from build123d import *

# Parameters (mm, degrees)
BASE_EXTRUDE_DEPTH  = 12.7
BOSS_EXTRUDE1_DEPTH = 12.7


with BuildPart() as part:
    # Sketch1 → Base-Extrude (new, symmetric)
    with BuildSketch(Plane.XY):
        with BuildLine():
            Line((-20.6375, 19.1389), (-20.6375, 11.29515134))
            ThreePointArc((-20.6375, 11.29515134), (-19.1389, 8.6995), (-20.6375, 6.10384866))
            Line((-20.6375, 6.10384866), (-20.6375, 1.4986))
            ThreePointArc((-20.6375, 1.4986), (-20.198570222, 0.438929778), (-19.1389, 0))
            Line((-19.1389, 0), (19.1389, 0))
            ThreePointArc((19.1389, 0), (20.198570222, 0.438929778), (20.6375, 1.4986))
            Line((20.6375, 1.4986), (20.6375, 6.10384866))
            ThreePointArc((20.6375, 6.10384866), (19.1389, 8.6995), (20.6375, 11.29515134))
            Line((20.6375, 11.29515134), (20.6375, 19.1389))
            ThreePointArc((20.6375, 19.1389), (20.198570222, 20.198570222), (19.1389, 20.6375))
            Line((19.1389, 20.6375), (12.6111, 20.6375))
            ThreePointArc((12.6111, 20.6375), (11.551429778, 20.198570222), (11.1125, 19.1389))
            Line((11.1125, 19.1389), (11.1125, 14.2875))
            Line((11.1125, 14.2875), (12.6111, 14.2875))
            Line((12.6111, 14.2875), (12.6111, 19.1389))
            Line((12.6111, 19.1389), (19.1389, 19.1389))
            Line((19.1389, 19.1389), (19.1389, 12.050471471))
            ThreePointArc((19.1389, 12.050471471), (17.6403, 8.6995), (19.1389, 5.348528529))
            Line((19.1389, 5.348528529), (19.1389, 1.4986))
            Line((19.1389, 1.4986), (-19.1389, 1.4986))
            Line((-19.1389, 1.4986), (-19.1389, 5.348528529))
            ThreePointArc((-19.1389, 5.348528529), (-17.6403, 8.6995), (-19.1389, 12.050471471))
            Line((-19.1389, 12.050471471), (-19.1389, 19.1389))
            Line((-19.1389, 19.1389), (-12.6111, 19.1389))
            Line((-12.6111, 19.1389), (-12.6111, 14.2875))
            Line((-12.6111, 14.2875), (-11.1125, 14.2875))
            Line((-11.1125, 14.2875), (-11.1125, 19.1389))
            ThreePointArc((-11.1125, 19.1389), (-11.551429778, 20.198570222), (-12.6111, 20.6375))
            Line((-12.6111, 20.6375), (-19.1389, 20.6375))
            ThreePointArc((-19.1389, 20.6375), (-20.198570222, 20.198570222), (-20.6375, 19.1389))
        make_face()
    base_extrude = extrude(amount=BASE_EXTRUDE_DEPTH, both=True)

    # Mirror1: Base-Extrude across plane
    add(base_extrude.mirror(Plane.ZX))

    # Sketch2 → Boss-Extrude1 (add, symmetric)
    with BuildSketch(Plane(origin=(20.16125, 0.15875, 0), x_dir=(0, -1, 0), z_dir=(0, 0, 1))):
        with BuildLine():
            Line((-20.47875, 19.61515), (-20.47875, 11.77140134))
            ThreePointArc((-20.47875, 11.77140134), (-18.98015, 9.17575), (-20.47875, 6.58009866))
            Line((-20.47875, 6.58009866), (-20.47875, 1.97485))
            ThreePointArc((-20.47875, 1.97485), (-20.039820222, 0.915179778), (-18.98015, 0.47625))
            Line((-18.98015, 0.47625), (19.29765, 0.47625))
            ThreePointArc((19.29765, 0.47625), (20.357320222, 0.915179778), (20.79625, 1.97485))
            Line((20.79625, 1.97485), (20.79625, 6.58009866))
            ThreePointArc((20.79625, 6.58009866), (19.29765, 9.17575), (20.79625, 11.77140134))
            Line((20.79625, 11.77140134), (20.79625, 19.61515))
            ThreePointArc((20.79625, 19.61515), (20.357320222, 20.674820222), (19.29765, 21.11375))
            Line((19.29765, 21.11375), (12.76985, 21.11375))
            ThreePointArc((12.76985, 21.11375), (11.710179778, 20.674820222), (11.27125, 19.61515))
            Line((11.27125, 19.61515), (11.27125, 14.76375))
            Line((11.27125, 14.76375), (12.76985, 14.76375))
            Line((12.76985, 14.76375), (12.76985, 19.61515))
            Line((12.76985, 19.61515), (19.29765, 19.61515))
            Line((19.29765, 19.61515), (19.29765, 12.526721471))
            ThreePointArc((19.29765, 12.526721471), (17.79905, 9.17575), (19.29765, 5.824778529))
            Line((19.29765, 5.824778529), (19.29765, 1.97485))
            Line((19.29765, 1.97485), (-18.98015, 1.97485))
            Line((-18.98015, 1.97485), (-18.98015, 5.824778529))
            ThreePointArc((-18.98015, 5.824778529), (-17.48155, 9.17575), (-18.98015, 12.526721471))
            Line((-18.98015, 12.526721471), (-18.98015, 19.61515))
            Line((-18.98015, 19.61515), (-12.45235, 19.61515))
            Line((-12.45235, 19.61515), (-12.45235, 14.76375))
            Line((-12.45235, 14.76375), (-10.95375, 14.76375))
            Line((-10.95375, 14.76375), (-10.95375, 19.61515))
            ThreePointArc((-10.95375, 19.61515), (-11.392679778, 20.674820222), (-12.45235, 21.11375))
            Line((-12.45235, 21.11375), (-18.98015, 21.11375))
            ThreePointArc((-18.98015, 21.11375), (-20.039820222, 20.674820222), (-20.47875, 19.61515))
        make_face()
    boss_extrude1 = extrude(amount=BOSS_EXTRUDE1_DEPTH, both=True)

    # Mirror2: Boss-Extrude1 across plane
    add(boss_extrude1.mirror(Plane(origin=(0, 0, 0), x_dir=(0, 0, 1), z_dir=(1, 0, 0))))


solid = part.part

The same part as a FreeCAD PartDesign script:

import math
import FreeCAD as App
import Part
import Sketcher
from FreeCAD import Vector
Q = App.Units.Quantity

doc = App.newDocument("Part")
body = doc.addObject("PartDesign::Body", "Body")

# Sketch on XY plane
sketch1 = body.newObject("Sketcher::SketchObject", "Sketch")
sketch1.AttachmentSupport = (doc.getObject("XY_Plane"), [""])
sketch1.MapMode = "FlatFace"
sketch1.addGeometry(Part.LineSegment(Vector(-20.6, 19.1, 0), Vector(-20.6, 11.3, 0)), False)
sketch1.addGeometry(Part.ArcOfCircle(Part.Circle(Vector(-22.1, 8.7, 0), Vector(0, 0, 1), 3), math.radians(-60), math.radians(60)), False)
sketch1.addGeometry(Part.LineSegment(Vector(-20.6, 6.1, 0), Vector(-20.6, 1.5, 0)), False)
sketch1.addGeometry(Part.ArcOfCircle(Part.Circle(Vector(-19.1, 1.5, 0), Vector(0, 0, 1), 1.5), math.radians(-180), math.radians(-90)), False)
sketch1.addGeometry(Part.LineSegment(Vector(-19.1, 0, 0), Vector(19.1, 0, 0)), False)
sketch1.addGeometry(Part.ArcOfCircle(Part.Circle(Vector(19.1, 1.5, 0), Vector(0, 0, 1), 1.5), math.radians(-90), math.radians(0)), False)
sketch1.addGeometry(Part.LineSegment(Vector(20.6, 1.5, 0), Vector(20.6, 6.1, 0)), False)
sketch1.addGeometry(Part.ArcOfCircle(Part.Circle(Vector(22.1, 8.7, 0), Vector(0, 0, 1), 3), math.radians(120), math.radians(240)), False)
sketch1.addGeometry(Part.LineSegment(Vector(20.6, 11.3, 0), Vector(20.6, 19.1, 0)), False)
sketch1.addGeometry(Part.ArcOfCircle(Part.Circle(Vector(19.1, 19.1, 0), Vector(0, 0, 1), 1.5), math.radians(0), math.radians(90)), False)
sketch1.addGeometry(Part.LineSegment(Vector(19.1, 20.6, 0), Vector(12.6, 20.6, 0)), False)
sketch1.addGeometry(Part.ArcOfCircle(Part.Circle(Vector(12.6, 19.1, 0), Vector(0, 0, 1), 1.5), math.radians(90), math.radians(180)), False)
sketch1.addGeometry(Part.LineSegment(Vector(11.1, 19.1, 0), Vector(11.1, 14.3, 0)), False)
sketch1.addGeometry(Part.LineSegment(Vector(11.1, 14.3, 0), Vector(12.6, 14.3, 0)), False)
sketch1.addGeometry(Part.LineSegment(Vector(12.6, 14.3, 0), Vector(12.6, 19.1, 0)), False)
sketch1.addGeometry(Part.LineSegment(Vector(12.6, 19.1, 0), Vector(19.1, 19.1, 0)), False)
sketch1.addGeometry(Part.LineSegment(Vector(19.1, 19.1, 0), Vector(19.1, 12.1, 0)), False)
sketch1.addGeometry(Part.ArcOfCircle(Part.Circle(Vector(22.1, 8.7, 0), Vector(0, 0, 1), 4.5), math.radians(132), math.radians(228)), False)
sketch1.addGeometry(Part.LineSegment(Vector(19.1, 5.3, 0), Vector(19.1, 1.5, 0)), False)
sketch1.addGeometry(Part.LineSegment(Vector(19.1, 1.5, 0), Vector(-19.1, 1.5, 0)), False)
sketch1.addGeometry(Part.LineSegment(Vector(-19.1, 1.5, 0), Vector(-19.1, 5.3, 0)), False)
sketch1.addGeometry(Part.ArcOfCircle(Part.Circle(Vector(-22.1, 8.7, 0), Vector(0, 0, 1), 4.5), math.radians(-48), math.radians(48)), False)
sketch1.addGeometry(Part.LineSegment(Vector(-19.1, 12.1, 0), Vector(-19.1, 19.1, 0)), False)
sketch1.addGeometry(Part.LineSegment(Vector(-19.1, 19.1, 0), Vector(-12.6, 19.1, 0)), False)
sketch1.addGeometry(Part.LineSegment(Vector(-12.6, 19.1, 0), Vector(-12.6, 14.3, 0)), False)
sketch1.addGeometry(Part.LineSegment(Vector(-12.6, 14.3, 0), Vector(-11.1, 14.3, 0)), False)
sketch1.addGeometry(Part.LineSegment(Vector(-11.1, 14.3, 0), Vector(-11.1, 19.1, 0)), False)
sketch1.addGeometry(Part.ArcOfCircle(Part.Circle(Vector(-12.6, 19.1, 0), Vector(0, 0, 1), 1.5), math.radians(0), math.radians(90)), False)
sketch1.addGeometry(Part.LineSegment(Vector(-12.6, 20.6, 0), Vector(-19.1, 20.6, 0)), False)
sketch1.addGeometry(Part.ArcOfCircle(Part.Circle(Vector(-19.1, 19.1, 0), Vector(0, 0, 1), 1.5), math.radians(90), math.radians(180)), False)
sketch1.addConstraint(Sketcher.Constraint("Coincident", 0, 2, 1, 2))
sketch1.addConstraint(Sketcher.Constraint("Coincident", 1, 1, 2, 1))
sketch1.addConstraint(Sketcher.Constraint("Tangent", 2, 2, 3, 1))
sketch1.addConstraint(Sketcher.Constraint("Tangent", 3, 2, 4, 1))
sketch1.addConstraint(Sketcher.Constraint("Tangent", 4, 2, 5, 1))
sketch1.addConstraint(Sketcher.Constraint("Tangent", 5, 2, 6, 1))
sketch1.addConstraint(Sketcher.Constraint("Coincident", 6, 2, 7, 2))
sketch1.addConstraint(Sketcher.Constraint("Coincident", 7, 1, 8, 1))
sketch1.addConstraint(Sketcher.Constraint("Tangent", 8, 2, 9, 1))
sketch1.addConstraint(Sketcher.Constraint("Tangent", 9, 2, 10, 1))
sketch1.addConstraint(Sketcher.Constraint("Tangent", 10, 2, 11, 1))
sketch1.addConstraint(Sketcher.Constraint("Tangent", 11, 2, 12, 1))
sketch1.addConstraint(Sketcher.Constraint("Coincident", 12, 2, 13, 1))
sketch1.addConstraint(Sketcher.Constraint("Coincident", 13, 2, 14, 1))
sketch1.addConstraint(Sketcher.Constraint("Coincident", 14, 2, 15, 1))
sketch1.addConstraint(Sketcher.Constraint("Coincident", 15, 2, 16, 1))
sketch1.addConstraint(Sketcher.Constraint("Coincident", 16, 2, 17, 1))
sketch1.addConstraint(Sketcher.Constraint("Coincident", 17, 2, 18, 1))
sketch1.addConstraint(Sketcher.Constraint("Coincident", 18, 2, 19, 1))
sketch1.addConstraint(Sketcher.Constraint("Coincident", 19, 2, 20, 1))
sketch1.addConstraint(Sketcher.Constraint("Coincident", 20, 2, 21, 1))
sketch1.addConstraint(Sketcher.Constraint("Coincident", 21, 2, 22, 1))
sketch1.addConstraint(Sketcher.Constraint("Coincident", 22, 2, 23, 1))
sketch1.addConstraint(Sketcher.Constraint("Coincident", 23, 2, 24, 1))
sketch1.addConstraint(Sketcher.Constraint("Coincident", 24, 2, 25, 1))
sketch1.addConstraint(Sketcher.Constraint("Coincident", 25, 2, 26, 1))
sketch1.addConstraint(Sketcher.Constraint("Tangent", 26, 2, 27, 1))
sketch1.addConstraint(Sketcher.Constraint("Tangent", 27, 2, 28, 1))
sketch1.addConstraint(Sketcher.Constraint("Tangent", 28, 2, 29, 1))
sketch1.addConstraint(Sketcher.Constraint("Tangent", 29, 2, 0, 1))
sketch1.addConstraint(Sketcher.Constraint("Vertical", 0))
sketch1.addConstraint(Sketcher.Constraint("Vertical", 2))
sketch1.addConstraint(Sketcher.Constraint("Horizontal", 4))
sketch1.addConstraint(Sketcher.Constraint("Vertical", 6))
sketch1.addConstraint(Sketcher.Constraint("Vertical", 8))
sketch1.addConstraint(Sketcher.Constraint("Horizontal", 10))
sketch1.addConstraint(Sketcher.Constraint("Vertical", 12))
sketch1.addConstraint(Sketcher.Constraint("Horizontal", 13))
sketch1.addConstraint(Sketcher.Constraint("Vertical", 14))
sketch1.addConstraint(Sketcher.Constraint("Horizontal", 15))
sketch1.addConstraint(Sketcher.Constraint("Vertical", 16))
sketch1.addConstraint(Sketcher.Constraint("Vertical", 18))
sketch1.addConstraint(Sketcher.Constraint("Horizontal", 19))
sketch1.addConstraint(Sketcher.Constraint("Vertical", 20))
sketch1.addConstraint(Sketcher.Constraint("Vertical", 22))
sketch1.addConstraint(Sketcher.Constraint("Horizontal", 23))
sketch1.addConstraint(Sketcher.Constraint("Vertical", 24))
sketch1.addConstraint(Sketcher.Constraint("Horizontal", 25))
sketch1.addConstraint(Sketcher.Constraint("Vertical", 26))
sketch1.addConstraint(Sketcher.Constraint("Horizontal", 28))
sketch1.addConstraint(Sketcher.Constraint("Coincident", 17, 3, 7, 3))
sketch1.addConstraint(Sketcher.Constraint("Coincident", 21, 3, 1, 3))
sketch1.addConstraint(Sketcher.Constraint("Coincident", 14, 2, 11, 3))
sketch1.addConstraint(Sketcher.Constraint("Coincident", 15, 2, 9, 3))
sketch1.addConstraint(Sketcher.Constraint("Coincident", 18, 2, 5, 3))
sketch1.addConstraint(Sketcher.Constraint("Coincident", 19, 2, 3, 3))
sketch1.addConstraint(Sketcher.Constraint("Coincident", 22, 2, 29, 3))
sketch1.addConstraint(Sketcher.Constraint("Coincident", 23, 2, 27, 3))
sketch1.addConstraint(Sketcher.Constraint("Equal", 1, 7))
sketch1.addConstraint(Sketcher.Constraint("Equal", 5, 9))
sketch1.addConstraint(Sketcher.Constraint("Equal", 17, 21))
sketch1.addConstraint(Sketcher.Constraint("Equal", 11, 27))
sketch1.addConstraint(Sketcher.Constraint("Symmetric", 3, 2, 4, 2, -1, 1))
sketch1.addConstraint(Sketcher.Constraint("Symmetric", 1, 3, 7, 3, -2))
sketch1.addConstraint(Sketcher.Constraint("Symmetric", 11, 3, 27, 3, -2))
sketch1.addConstraint(Sketcher.Constraint("Horizontal", 0, 2, 7, 1))
sketch1.addConstraint(Sketcher.Constraint("Horizontal", 13, 2, 24, 2))
sketch1.addConstraint(Sketcher.Constraint("Vertical", 5, 3, 9, 3))
sketch1.addConstraint(Sketcher.Constraint("Radius", 1, Q("0.118 in")))
sketch1.addConstraint(Sketcher.Constraint("Radius", 3, Q("0.059 in")))
sketch1.addConstraint(Sketcher.Constraint("Radius", 17, Q("0.177 in")))
sketch1.addConstraint(Sketcher.Constraint("DistanceX", 4, 1, 4, 2, Q("1.507 in")))
sketch1.addConstraint(Sketcher.Constraint("DistanceX", 10, 2, 10, 1, Q("0.257 in")))
sketch1.addConstraint(Sketcher.Constraint("DistanceY", 12, 2, 12, 1, Q("0.191 in")))
sketch1.addConstraint(Sketcher.Constraint("DistanceY", 7, 3, 9, 2, Q("0.47 in")))
sketch1.addConstraint(Sketcher.Constraint("DistanceY", -1, 1, 9, 2, Q("0.8125 in")))
sketch1.addConstraint(Sketcher.Constraint("DistanceX", 1, 3, 3, 3, Q("0.118 in")))
pad1 = body.newObject("PartDesign::Pad", "Pad")
pad1.Profile = sketch1
pad1.Length = Q("1 in")
pad1.Midplane = True
doc.recompute()

mirrored = body.newObject("PartDesign::Mirrored", "Mirrored")
mirrored.Originals = [pad1]
mirrored.MirrorPlane = (doc.getObject("XZ_Plane"), [""])
body.Tip = mirrored

# Sketch on XY plane
sketch2 = body.newObject("Sketcher::SketchObject", "Sketch001")
sketch2.AttachmentSupport = (doc.getObject("XY_Plane"), [""])
sketch2.MapMode = "FlatFace"
sketch2.addGeometry(Part.LineSegment(Vector(39.8, 20.6, 0), Vector(31.9, 20.6, 0)), False)
sketch2.addGeometry(Part.ArcOfCircle(Part.Circle(Vector(29.3, 22.1, 0), Vector(0, 0, 1), 3), math.radians(-150), math.radians(-30)), False)
sketch2.addGeometry(Part.LineSegment(Vector(26.7, 20.6, 0), Vector(22.1, 20.6, 0)), False)
sketch2.addGeometry(Part.ArcOfCircle(Part.Circle(Vector(22.1, 19.1, 0), Vector(0, 0, 1), 1.5), math.radians(90), math.radians(180)), False)
sketch2.addGeometry(Part.LineSegment(Vector(20.6, 19.1, 0), Vector(20.6, -19.1, 0)), False)
sketch2.addGeometry(Part.ArcOfCircle(Part.Circle(Vector(22.1, -19.1, 0), Vector(0, 0, 1), 1.5), math.radians(-180), math.radians(-90)), False)
sketch2.addGeometry(Part.LineSegment(Vector(22.1, -20.6, 0), Vector(26.7, -20.6, 0)), False)
sketch2.addGeometry(Part.ArcOfCircle(Part.Circle(Vector(29.3, -22.1, 0), Vector(0, 0, 1), 3), math.radians(30), math.radians(150)), False)
sketch2.addGeometry(Part.LineSegment(Vector(31.9, -20.6, 0), Vector(39.8, -20.6, 0)), False)
sketch2.addGeometry(Part.ArcOfCircle(Part.Circle(Vector(39.8, -19.1, 0), Vector(0, 0, 1), 1.5), math.radians(-90), math.radians(0)), False)
sketch2.addGeometry(Part.LineSegment(Vector(41.3, -19.1, 0), Vector(41.3, -12.6, 0)), False)
sketch2.addGeometry(Part.ArcOfCircle(Part.Circle(Vector(39.8, -12.6, 0), Vector(0, 0, 1), 1.5), math.radians(0), math.radians(90)), False)
sketch2.addGeometry(Part.LineSegment(Vector(39.8, -11.1, 0), Vector(34.9, -11.1, 0)), False)
sketch2.addGeometry(Part.LineSegment(Vector(34.9, -11.1, 0), Vector(34.9, -12.6, 0)), False)
sketch2.addGeometry(Part.LineSegment(Vector(34.9, -12.6, 0), Vector(39.8, -12.6, 0)), False)
sketch2.addGeometry(Part.LineSegment(Vector(39.8, -12.6, 0), Vector(39.8, -19.1, 0)), False)
sketch2.addGeometry(Part.LineSegment(Vector(39.8, -19.1, 0), Vector(32.7, -19.1, 0)), False)
sketch2.addGeometry(Part.ArcOfCircle(Part.Circle(Vector(29.3, -22.1, 0), Vector(0, 0, 1), 4.5), math.radians(42), math.radians(138)), False)
sketch2.addGeometry(Part.LineSegment(Vector(26, -19.1, 0), Vector(22.1, -19.1, 0)), False)
sketch2.addGeometry(Part.LineSegment(Vector(22.1, -19.1, 0), Vector(22.1, 19.1, 0)), False)
sketch2.addGeometry(Part.LineSegment(Vector(22.1, 19.1, 0), Vector(26, 19.1, 0)), False)
sketch2.addGeometry(Part.ArcOfCircle(Part.Circle(Vector(29.3, 22.1, 0), Vector(0, 0, 1), 4.5), math.radians(-138), math.radians(-42)), False)
sketch2.addGeometry(Part.LineSegment(Vector(32.7, 19.1, 0), Vector(39.8, 19.1, 0)), False)
sketch2.addGeometry(Part.LineSegment(Vector(39.8, 19.1, 0), Vector(39.8, 12.6, 0)), False)
sketch2.addGeometry(Part.LineSegment(Vector(39.8, 12.6, 0), Vector(34.9, 12.6, 0)), False)
sketch2.addGeometry(Part.LineSegment(Vector(34.9, 12.6, 0), Vector(34.9, 11.1, 0)), False)
sketch2.addGeometry(Part.LineSegment(Vector(34.9, 11.1, 0), Vector(39.8, 11.1, 0)), False)
sketch2.addGeometry(Part.ArcOfCircle(Part.Circle(Vector(39.8, 12.6, 0), Vector(0, 0, 1), 1.5), math.radians(-90), math.radians(0)), False)
sketch2.addGeometry(Part.LineSegment(Vector(41.3, 12.6, 0), Vector(41.3, 19.1, 0)), False)
sketch2.addGeometry(Part.ArcOfCircle(Part.Circle(Vector(39.8, 19.1, 0), Vector(0, 0, 1), 1.5), math.radians(0), math.radians(90)), False)
sketch2.addConstraint(Sketcher.Constraint("Coincident", 0, 2, 1, 2))
sketch2.addConstraint(Sketcher.Constraint("Coincident", 1, 1, 2, 1))
sketch2.addConstraint(Sketcher.Constraint("Tangent", 2, 2, 3, 1))
sketch2.addConstraint(Sketcher.Constraint("Tangent", 3, 2, 4, 1))
sketch2.addConstraint(Sketcher.Constraint("Tangent", 4, 2, 5, 1))
sketch2.addConstraint(Sketcher.Constraint("Tangent", 5, 2, 6, 1))
sketch2.addConstraint(Sketcher.Constraint("Coincident", 6, 2, 7, 2))
sketch2.addConstraint(Sketcher.Constraint("Coincident", 7, 1, 8, 1))
sketch2.addConstraint(Sketcher.Constraint("Tangent", 8, 2, 9, 1))
sketch2.addConstraint(Sketcher.Constraint("Tangent", 9, 2, 10, 1))
sketch2.addConstraint(Sketcher.Constraint("Tangent", 10, 2, 11, 1))
sketch2.addConstraint(Sketcher.Constraint("Tangent", 11, 2, 12, 1))
sketch2.addConstraint(Sketcher.Constraint("Coincident", 12, 2, 13, 1))
sketch2.addConstraint(Sketcher.Constraint("Coincident", 13, 2, 14, 1))
sketch2.addConstraint(Sketcher.Constraint("Coincident", 14, 2, 15, 1))
sketch2.addConstraint(Sketcher.Constraint("Coincident", 15, 2, 16, 1))
sketch2.addConstraint(Sketcher.Constraint("Coincident", 16, 2, 17, 1))
sketch2.addConstraint(Sketcher.Constraint("Coincident", 17, 2, 18, 1))
sketch2.addConstraint(Sketcher.Constraint("Coincident", 18, 2, 19, 1))
sketch2.addConstraint(Sketcher.Constraint("Coincident", 19, 2, 20, 1))
sketch2.addConstraint(Sketcher.Constraint("Coincident", 20, 2, 21, 1))
sketch2.addConstraint(Sketcher.Constraint("Coincident", 21, 2, 22, 1))
sketch2.addConstraint(Sketcher.Constraint("Coincident", 22, 2, 23, 1))
sketch2.addConstraint(Sketcher.Constraint("Coincident", 23, 2, 24, 1))
sketch2.addConstraint(Sketcher.Constraint("Coincident", 24, 2, 25, 1))
sketch2.addConstraint(Sketcher.Constraint("Coincident", 25, 2, 26, 1))
sketch2.addConstraint(Sketcher.Constraint("Tangent", 26, 2, 27, 1))
sketch2.addConstraint(Sketcher.Constraint("Tangent", 27, 2, 28, 1))
sketch2.addConstraint(Sketcher.Constraint("Tangent", 28, 2, 29, 1))
sketch2.addConstraint(Sketcher.Constraint("Tangent", 29, 2, 0, 1))
sketch2.addConstraint(Sketcher.Constraint("Horizontal", 0))
sketch2.addConstraint(Sketcher.Constraint("Horizontal", 2))
sketch2.addConstraint(Sketcher.Constraint("Vertical", 4))
sketch2.addConstraint(Sketcher.Constraint("Horizontal", 6))
sketch2.addConstraint(Sketcher.Constraint("Horizontal", 8))
sketch2.addConstraint(Sketcher.Constraint("Vertical", 10))
sketch2.addConstraint(Sketcher.Constraint("Horizontal", 12))
sketch2.addConstraint(Sketcher.Constraint("Vertical", 13))
sketch2.addConstraint(Sketcher.Constraint("Horizontal", 14))
sketch2.addConstraint(Sketcher.Constraint("Vertical", 15))
sketch2.addConstraint(Sketcher.Constraint("Horizontal", 16))
sketch2.addConstraint(Sketcher.Constraint("Horizontal", 18))
sketch2.addConstraint(Sketcher.Constraint("Vertical", 19))
sketch2.addConstraint(Sketcher.Constraint("Horizontal", 20))
sketch2.addConstraint(Sketcher.Constraint("Horizontal", 22))
sketch2.addConstraint(Sketcher.Constraint("Vertical", 23))
sketch2.addConstraint(Sketcher.Constraint("Horizontal", 24))
sketch2.addConstraint(Sketcher.Constraint("Vertical", 25))
sketch2.addConstraint(Sketcher.Constraint("Horizontal", 26))
sketch2.addConstraint(Sketcher.Constraint("Vertical", 28))
sketch2.addConstraint(Sketcher.Constraint("Coincident", 17, 3, 7, 3))
sketch2.addConstraint(Sketcher.Constraint("Coincident", 21, 3, 1, 3))
sketch2.addConstraint(Sketcher.Constraint("Coincident", 14, 2, 11, 3))
sketch2.addConstraint(Sketcher.Constraint("Coincident", 15, 2, 9, 3))
sketch2.addConstraint(Sketcher.Constraint("Coincident", 18, 2, 5, 3))
sketch2.addConstraint(Sketcher.Constraint("Coincident", 19, 2, 3, 3))
sketch2.addConstraint(Sketcher.Constraint("Coincident", 22, 2, 29, 3))
sketch2.addConstraint(Sketcher.Constraint("Coincident", 23, 2, 27, 3))
sketch2.addConstraint(Sketcher.Constraint("Equal", 1, 7))
sketch2.addConstraint(Sketcher.Constraint("Equal", 5, 9))
sketch2.addConstraint(Sketcher.Constraint("Equal", 17, 21))
sketch2.addConstraint(Sketcher.Constraint("Equal", 11, 27))
sketch2.addConstraint(Sketcher.Constraint("Symmetric", 1, 3, 7, 3, -1))
sketch2.addConstraint(Sketcher.Constraint("Symmetric", 11, 3, 27, 3, -1))
sketch2.addConstraint(Sketcher.Constraint("Horizontal", 5, 3, 9, 3))
sketch2.addConstraint(Sketcher.Constraint("Horizontal", 3, 3, 29, 3))
sketch2.addConstraint(Sketcher.Constraint("Vertical", 1, 1, 6, 2))
sketch2.addConstraint(Sketcher.Constraint("Vertical", 13, 2, 24, 2))
sketch2.addConstraint(Sketcher.Constraint("Radius", 1, Q("0.118 in")))
sketch2.addConstraint(Sketcher.Constraint("Radius", 3, Q("0.059 in")))
sketch2.addConstraint(Sketcher.Constraint("Radius", 17, Q("0.177 in")))
sketch2.addConstraint(Sketcher.Constraint("DistanceX", 12, 2, 12, 1, Q("0.191 in")))
sketch2.addConstraint(Sketcher.Constraint("DistanceY", 4, 2, 4, 1, Q("1.507 in")))
sketch2.addConstraint(Sketcher.Constraint("DistanceY", 10, 1, 10, 2, Q("0.257 in")))
sketch2.addConstraint(Sketcher.Constraint("DistanceX", 7, 3, 9, 2, Q("0.47 in")))
sketch2.addConstraint(Sketcher.Constraint("DistanceX", -1, 1, 1, 3, Q("1.155 in")))
sketch2.addConstraint(Sketcher.Constraint("DistanceX", -1, 1, 3, 2, Q("0.8125 in")))
sketch2.addConstraint(Sketcher.Constraint("DistanceY", 3, 3, 1, 3, Q("0.118 in")))
pad2 = body.newObject("PartDesign::Pad", "Pad001")
pad2.Profile = sketch2
pad2.Length = Q("1 in")
pad2.Midplane = True
doc.recompute()

mirrored2 = body.newObject("PartDesign::Mirrored", "Mirrored001")
mirrored2.Originals = [pad2]
mirrored2.MirrorPlane = (doc.getObject("YZ_Plane"), [""])
body.Tip = mirrored2

doc.recompute()
